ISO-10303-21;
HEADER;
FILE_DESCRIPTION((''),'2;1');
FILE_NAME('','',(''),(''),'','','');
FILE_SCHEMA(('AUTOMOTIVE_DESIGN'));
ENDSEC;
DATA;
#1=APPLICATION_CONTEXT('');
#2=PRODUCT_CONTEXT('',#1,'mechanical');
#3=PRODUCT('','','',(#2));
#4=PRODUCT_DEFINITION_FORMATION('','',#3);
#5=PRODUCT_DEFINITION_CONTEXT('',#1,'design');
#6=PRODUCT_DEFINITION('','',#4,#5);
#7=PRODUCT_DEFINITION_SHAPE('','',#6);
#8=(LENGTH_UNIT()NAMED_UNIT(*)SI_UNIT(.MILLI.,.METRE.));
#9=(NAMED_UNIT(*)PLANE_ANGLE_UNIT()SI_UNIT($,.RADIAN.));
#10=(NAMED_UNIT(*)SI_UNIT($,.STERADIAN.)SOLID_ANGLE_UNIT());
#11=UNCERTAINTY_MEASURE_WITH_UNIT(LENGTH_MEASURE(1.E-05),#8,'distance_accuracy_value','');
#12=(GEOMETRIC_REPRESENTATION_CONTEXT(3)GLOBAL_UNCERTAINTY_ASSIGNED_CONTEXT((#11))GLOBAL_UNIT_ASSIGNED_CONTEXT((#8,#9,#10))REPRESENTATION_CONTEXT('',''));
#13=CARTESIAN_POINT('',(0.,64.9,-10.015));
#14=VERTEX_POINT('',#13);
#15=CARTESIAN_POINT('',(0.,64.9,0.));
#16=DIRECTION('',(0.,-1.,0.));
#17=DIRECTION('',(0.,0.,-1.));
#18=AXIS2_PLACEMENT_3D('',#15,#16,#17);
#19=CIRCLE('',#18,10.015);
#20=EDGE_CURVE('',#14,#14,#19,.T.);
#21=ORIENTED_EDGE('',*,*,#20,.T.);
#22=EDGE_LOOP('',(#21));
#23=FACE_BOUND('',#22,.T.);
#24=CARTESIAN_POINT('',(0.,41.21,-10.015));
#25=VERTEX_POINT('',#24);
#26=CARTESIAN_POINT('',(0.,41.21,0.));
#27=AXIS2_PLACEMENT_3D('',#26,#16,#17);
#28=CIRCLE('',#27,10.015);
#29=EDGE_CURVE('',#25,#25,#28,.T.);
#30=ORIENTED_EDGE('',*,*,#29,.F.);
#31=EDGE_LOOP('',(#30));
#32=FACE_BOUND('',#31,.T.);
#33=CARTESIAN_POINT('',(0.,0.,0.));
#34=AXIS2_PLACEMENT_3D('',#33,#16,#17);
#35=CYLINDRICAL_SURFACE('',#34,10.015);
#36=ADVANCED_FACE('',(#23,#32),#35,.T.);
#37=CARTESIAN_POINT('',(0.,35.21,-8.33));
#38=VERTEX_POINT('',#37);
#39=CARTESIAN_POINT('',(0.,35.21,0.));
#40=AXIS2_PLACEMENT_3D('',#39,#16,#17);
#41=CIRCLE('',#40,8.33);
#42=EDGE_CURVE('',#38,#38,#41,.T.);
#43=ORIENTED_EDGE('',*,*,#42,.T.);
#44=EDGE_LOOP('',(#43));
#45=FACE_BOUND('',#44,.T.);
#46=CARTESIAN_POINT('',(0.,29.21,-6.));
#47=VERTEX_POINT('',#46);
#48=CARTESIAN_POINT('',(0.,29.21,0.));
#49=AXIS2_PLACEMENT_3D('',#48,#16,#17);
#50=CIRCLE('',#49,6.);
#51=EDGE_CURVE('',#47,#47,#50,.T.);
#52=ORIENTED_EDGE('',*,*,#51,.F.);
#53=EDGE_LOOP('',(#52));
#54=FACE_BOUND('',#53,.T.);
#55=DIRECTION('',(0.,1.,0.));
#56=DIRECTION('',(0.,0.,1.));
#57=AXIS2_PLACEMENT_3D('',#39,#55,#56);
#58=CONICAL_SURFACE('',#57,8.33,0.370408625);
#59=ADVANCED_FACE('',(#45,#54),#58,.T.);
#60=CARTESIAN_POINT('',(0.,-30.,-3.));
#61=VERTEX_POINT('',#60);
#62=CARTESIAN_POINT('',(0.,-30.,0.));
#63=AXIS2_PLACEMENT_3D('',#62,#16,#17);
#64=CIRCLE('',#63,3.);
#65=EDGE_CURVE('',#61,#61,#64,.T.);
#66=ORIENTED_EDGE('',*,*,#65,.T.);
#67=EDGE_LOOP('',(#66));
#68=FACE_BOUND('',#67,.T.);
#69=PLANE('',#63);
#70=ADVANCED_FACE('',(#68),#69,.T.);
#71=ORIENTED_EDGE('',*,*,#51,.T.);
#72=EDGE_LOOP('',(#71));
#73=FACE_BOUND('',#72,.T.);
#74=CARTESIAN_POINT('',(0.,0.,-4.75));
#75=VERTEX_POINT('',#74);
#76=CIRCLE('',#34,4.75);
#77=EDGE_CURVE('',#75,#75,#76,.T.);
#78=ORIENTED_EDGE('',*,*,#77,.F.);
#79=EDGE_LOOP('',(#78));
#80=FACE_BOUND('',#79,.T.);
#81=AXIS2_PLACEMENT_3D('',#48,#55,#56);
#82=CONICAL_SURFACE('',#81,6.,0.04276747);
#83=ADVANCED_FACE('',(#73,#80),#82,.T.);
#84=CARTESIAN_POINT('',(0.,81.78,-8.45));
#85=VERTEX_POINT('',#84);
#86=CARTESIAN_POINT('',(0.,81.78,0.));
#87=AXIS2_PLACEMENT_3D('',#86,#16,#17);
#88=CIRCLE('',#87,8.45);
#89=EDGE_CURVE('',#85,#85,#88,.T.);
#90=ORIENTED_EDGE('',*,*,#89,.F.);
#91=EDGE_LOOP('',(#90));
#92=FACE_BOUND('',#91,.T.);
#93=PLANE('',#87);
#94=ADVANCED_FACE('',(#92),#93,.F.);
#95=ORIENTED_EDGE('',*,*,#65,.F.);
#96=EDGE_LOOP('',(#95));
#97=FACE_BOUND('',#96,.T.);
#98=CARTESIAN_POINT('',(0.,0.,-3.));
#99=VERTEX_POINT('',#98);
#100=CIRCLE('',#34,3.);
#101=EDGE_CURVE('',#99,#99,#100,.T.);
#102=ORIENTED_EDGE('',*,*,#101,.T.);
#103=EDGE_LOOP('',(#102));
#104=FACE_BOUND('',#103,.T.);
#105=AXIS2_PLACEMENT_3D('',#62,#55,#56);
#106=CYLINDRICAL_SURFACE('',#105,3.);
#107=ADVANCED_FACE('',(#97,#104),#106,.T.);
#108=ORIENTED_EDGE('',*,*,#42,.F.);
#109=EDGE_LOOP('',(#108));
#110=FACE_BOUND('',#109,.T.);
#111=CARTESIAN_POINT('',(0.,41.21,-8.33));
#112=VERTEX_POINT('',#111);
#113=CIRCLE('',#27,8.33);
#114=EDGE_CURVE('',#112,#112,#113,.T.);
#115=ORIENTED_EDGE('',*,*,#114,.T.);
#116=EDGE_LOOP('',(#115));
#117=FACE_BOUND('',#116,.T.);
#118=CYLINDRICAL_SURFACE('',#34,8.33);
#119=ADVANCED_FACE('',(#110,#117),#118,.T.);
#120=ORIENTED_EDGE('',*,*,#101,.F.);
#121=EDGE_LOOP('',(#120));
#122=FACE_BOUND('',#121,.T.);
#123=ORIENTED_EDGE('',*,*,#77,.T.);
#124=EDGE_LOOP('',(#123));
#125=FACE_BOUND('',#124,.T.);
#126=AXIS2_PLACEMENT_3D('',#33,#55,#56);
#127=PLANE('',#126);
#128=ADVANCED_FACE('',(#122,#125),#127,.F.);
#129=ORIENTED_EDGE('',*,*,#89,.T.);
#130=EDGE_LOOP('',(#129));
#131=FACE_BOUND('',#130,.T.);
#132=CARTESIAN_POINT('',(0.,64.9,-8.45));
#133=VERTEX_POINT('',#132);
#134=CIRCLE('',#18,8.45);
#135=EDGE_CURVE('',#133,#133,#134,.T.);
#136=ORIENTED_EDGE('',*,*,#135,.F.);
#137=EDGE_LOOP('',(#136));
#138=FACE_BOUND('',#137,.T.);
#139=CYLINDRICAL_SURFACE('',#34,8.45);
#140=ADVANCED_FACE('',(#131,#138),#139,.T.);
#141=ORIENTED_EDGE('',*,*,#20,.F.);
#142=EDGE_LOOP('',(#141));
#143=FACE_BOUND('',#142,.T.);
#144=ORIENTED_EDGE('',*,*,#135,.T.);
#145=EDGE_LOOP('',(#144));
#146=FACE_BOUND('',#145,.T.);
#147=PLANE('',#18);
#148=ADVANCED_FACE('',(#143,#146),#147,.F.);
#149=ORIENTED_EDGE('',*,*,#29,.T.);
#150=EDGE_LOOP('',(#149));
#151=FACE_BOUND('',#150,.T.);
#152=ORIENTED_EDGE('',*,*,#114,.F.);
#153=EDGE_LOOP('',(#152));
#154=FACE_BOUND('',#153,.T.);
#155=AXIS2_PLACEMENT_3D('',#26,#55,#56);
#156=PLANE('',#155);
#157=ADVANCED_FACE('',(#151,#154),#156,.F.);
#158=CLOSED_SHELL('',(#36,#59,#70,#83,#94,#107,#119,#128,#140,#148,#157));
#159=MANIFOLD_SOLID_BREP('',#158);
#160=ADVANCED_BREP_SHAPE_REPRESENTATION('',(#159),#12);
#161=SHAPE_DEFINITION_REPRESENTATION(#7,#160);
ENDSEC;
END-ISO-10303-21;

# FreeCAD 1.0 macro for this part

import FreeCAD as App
import Part
import Sketcher
Q = App.Units.Quantity

doc = App.newDocument("Part")
params = doc.addObject("Spreadsheet::Sheet", "Params")
for row, (alias, value) in enumerate([
    ("sketch1_width", "8.45 mm"),
    ("sketch1_height", "40.57 mm"),
    ("sketch1_height2", "23.69 mm"),
    ("revolution_angle", "360 deg"),
    ("sketch2_height", "6 mm"),
    ("sketch2_width", "4.75 mm"),
    ("sketch2_width2", "8.33 mm"),
    ("sketch2_height2", "41.21 mm"),
    ("revolution2_angle", "360 deg"),
    ("sketch3_diameter", "6 mm"),
    ("pad1_length", "30 mm"),
], start=1):
    params.set(f"A{row}", alias)
    params.set(f"B{row}", "=" + value)
    params.setAlias(f"B{row}", alias)

body = doc.addObject("PartDesign::Body", "Body")

# Sketch on XY plane
sketch1 = body.newObject("Sketcher::SketchObject", "Sketch")
sketch1.AttachmentSupport = (doc.getObject("XY_Plane"), [""])
sketch1.MapMode = "FlatFace"
sketch1.addGeometry([
    Part.LineSegment(App.Vector(0, 81.8, 0), App.Vector(0, 41.2, 0)),  # 0
    Part.LineSegment(App.Vector(0, 41.2, 0), App.Vector(10, 41.2, 0)),  # 1
    Part.LineSegment(App.Vector(10, 41.2, 0), App.Vector(10, 64.9, 0)),  # 2
    Part.LineSegment(App.Vector(10, 64.9, 0), App.Vector(8.4, 64.9, 0)),  # 3
    Part.LineSegment(App.Vector(8.4, 64.9, 0), App.Vector(8.4, 81.8, 0)),  # 4
    Part.LineSegment(App.Vector(8.4, 81.8, 0), App.Vector(0, 81.8, 0)),  # 5
], False)
sketch1.addConstraint([
    Sketcher.Constraint("Coincident", 0, 2, 1, 1),
    Sketcher.Constraint("Coincident", 1, 2, 2, 1),
    Sketcher.Constraint("Coincident", 2, 2, 3, 1),
    Sketcher.Constraint("Coincident", 3, 2, 4, 1),
    Sketcher.Constraint("Coincident", 4, 2, 5, 1),
    Sketcher.Constraint("Coincident", 5, 2, 0, 1),
    Sketcher.Constraint("Vertical", 0),
    Sketcher.Constraint("Horizontal", 1),
    Sketcher.Constraint("Vertical", 2),
    Sketcher.Constraint("Horizontal", 3),
    Sketcher.Constraint("Vertical", 4),
    Sketcher.Constraint("Horizontal", 5),
    Sketcher.Constraint("PointOnObject", 0, 2, -2),
    Sketcher.Constraint("DistanceX", 5, 2, 5, 1, Q("8.45 mm")),
    Sketcher.Constraint("DistanceY", 0, 2, 0, 1, Q("40.57 mm")),
    Sketcher.Constraint("DistanceY", 2, 1, 2, 2, Q("23.69 mm")),
    Sketcher.Constraint("DistanceY", -1, 1, 2, 2, Q("64.9 mm")),
    Sketcher.Constraint("DistanceX", 1, 1, 1, 2, Q("10.015 mm")),
])
sketch1.setExpression("Constraints[13]", "Params.sketch1_width")
sketch1.setExpression("Constraints[14]", "Params.sketch1_height")
sketch1.setExpression("Constraints[15]", "Params.sketch1_height2")
revolution = body.newObject("PartDesign::Revolution", "Revolution")
revolution.Profile = sketch1
revolution.ReferenceAxis = (sketch1, ["V_Axis"])
revolution.setExpression("Angle", "Params.revolution_angle")

# Sketch on XY plane
sketch2 = body.newObject("Sketcher::SketchObject", "Sketch001")
sketch2.AttachmentSupport = (doc.getObject("XY_Plane"), [""])
sketch2.MapMode = "FlatFace"
sketch2.addGeometry([
    Part.LineSegment(App.Vector(0, 41.2, 0), App.Vector(0, 0, 0)),  # 0
    Part.LineSegment(App.Vector(0, 0, 0), App.Vector(4.8, 0, 0)),  # 1
    Part.LineSegment(App.Vector(4.8, 0, 0), App.Vector(6, 29.2, 0)),  # 2
    Part.LineSegment(App.Vector(6, 29.2, 0), App.Vector(8.3, 35.2, 0)),  # 3
    Part.LineSegment(App.Vector(8.3, 35.2, 0), App.Vector(8.3, 41.2, 0)),  # 4
    Part.LineSegment(App.Vector(8.3, 41.2, 0), App.Vector(0, 41.2, 0)),  # 5
], False)
sketch2.addConstraint([
    Sketcher.Constraint("Coincident", 0, 2, 1, 1),
    Sketcher.Constraint("Coincident", 1, 2, 2, 1),
    Sketcher.Constraint("Coincident", 2, 2, 3, 1),
    Sketcher.Constraint("Coincident", 3, 2, 4, 1),
    Sketcher.Constraint("Coincident", 4, 2, 5, 1),
    Sketcher.Constraint("Coincident", 5, 2, 0, 1),
    Sketcher.Constraint("Vertical", 0),
    Sketcher.Constraint("Horizontal", 1),
    Sketcher.Constraint("Vertical", 4),
    Sketcher.Constraint("Horizontal", 5),
    Sketcher.Constraint("Coincident", 0, 2, -1, 1),
    Sketcher.Constraint("DistanceY", 4, 1, 4, 2, Q("6 mm")),
    Sketcher.Constraint("DistanceX", -1, 1, 2, 2, Q("6 mm")),
    Sketcher.Constraint("DistanceY", 2, 2, 3, 2, Q("6 mm")),
    Sketcher.Constraint("DistanceX", 1, 1, 1, 2, Q("4.75 mm")),
    Sketcher.Constraint("DistanceX", 5, 2, 5, 1, Q("8.33 mm")),
    Sketcher.Constraint("DistanceY", 0, 2, 0, 1, Q("41.21 mm")),
])
sketch2.setExpression("Constraints[11]", "Params.sketch2_height")
sketch2.setExpression("Constraints[14]", "Params.sketch2_width")
sketch2.setExpression("Constraints[15]", "Params.sketch2_width2")
sketch2.setExpression("Constraints[16]", "Params.sketch2_height2")
revolution2 = body.newObject("PartDesign::Revolution", "Revolution001")
revolution2.Profile = sketch2
revolution2.ReferenceAxis = (sketch2, ["V_Axis"])
revolution2.setExpression("Angle", "Params.revolution2_angle")

# Sketch on XZ plane
sketch3 = body.newObject("Sketcher::SketchObject", "Sketch002")
sketch3.AttachmentSupport = (doc.getObject("XZ_Plane"), [""])
sketch3.MapMode = "FlatFace"
sketch3.addGeometry(Part.Circle(App.Vector(0, 0, 0), App.Vector(0, 0, 1), 3), False)
sketch3.addConstraint([
    Sketcher.Constraint("Coincident", 0, 3, -1, 1),
    Sketcher.Constraint("Diameter", 0, Q("6 mm")),
])
sketch3.setExpression("Constraints[1]", "Params.sketch3_diameter")
pad1 = body.newObject("PartDesign::Pad", "Pad")
pad1.Profile = sketch3
pad1.setExpression("Length", "Params.pad1_length")

doc.recompute()
